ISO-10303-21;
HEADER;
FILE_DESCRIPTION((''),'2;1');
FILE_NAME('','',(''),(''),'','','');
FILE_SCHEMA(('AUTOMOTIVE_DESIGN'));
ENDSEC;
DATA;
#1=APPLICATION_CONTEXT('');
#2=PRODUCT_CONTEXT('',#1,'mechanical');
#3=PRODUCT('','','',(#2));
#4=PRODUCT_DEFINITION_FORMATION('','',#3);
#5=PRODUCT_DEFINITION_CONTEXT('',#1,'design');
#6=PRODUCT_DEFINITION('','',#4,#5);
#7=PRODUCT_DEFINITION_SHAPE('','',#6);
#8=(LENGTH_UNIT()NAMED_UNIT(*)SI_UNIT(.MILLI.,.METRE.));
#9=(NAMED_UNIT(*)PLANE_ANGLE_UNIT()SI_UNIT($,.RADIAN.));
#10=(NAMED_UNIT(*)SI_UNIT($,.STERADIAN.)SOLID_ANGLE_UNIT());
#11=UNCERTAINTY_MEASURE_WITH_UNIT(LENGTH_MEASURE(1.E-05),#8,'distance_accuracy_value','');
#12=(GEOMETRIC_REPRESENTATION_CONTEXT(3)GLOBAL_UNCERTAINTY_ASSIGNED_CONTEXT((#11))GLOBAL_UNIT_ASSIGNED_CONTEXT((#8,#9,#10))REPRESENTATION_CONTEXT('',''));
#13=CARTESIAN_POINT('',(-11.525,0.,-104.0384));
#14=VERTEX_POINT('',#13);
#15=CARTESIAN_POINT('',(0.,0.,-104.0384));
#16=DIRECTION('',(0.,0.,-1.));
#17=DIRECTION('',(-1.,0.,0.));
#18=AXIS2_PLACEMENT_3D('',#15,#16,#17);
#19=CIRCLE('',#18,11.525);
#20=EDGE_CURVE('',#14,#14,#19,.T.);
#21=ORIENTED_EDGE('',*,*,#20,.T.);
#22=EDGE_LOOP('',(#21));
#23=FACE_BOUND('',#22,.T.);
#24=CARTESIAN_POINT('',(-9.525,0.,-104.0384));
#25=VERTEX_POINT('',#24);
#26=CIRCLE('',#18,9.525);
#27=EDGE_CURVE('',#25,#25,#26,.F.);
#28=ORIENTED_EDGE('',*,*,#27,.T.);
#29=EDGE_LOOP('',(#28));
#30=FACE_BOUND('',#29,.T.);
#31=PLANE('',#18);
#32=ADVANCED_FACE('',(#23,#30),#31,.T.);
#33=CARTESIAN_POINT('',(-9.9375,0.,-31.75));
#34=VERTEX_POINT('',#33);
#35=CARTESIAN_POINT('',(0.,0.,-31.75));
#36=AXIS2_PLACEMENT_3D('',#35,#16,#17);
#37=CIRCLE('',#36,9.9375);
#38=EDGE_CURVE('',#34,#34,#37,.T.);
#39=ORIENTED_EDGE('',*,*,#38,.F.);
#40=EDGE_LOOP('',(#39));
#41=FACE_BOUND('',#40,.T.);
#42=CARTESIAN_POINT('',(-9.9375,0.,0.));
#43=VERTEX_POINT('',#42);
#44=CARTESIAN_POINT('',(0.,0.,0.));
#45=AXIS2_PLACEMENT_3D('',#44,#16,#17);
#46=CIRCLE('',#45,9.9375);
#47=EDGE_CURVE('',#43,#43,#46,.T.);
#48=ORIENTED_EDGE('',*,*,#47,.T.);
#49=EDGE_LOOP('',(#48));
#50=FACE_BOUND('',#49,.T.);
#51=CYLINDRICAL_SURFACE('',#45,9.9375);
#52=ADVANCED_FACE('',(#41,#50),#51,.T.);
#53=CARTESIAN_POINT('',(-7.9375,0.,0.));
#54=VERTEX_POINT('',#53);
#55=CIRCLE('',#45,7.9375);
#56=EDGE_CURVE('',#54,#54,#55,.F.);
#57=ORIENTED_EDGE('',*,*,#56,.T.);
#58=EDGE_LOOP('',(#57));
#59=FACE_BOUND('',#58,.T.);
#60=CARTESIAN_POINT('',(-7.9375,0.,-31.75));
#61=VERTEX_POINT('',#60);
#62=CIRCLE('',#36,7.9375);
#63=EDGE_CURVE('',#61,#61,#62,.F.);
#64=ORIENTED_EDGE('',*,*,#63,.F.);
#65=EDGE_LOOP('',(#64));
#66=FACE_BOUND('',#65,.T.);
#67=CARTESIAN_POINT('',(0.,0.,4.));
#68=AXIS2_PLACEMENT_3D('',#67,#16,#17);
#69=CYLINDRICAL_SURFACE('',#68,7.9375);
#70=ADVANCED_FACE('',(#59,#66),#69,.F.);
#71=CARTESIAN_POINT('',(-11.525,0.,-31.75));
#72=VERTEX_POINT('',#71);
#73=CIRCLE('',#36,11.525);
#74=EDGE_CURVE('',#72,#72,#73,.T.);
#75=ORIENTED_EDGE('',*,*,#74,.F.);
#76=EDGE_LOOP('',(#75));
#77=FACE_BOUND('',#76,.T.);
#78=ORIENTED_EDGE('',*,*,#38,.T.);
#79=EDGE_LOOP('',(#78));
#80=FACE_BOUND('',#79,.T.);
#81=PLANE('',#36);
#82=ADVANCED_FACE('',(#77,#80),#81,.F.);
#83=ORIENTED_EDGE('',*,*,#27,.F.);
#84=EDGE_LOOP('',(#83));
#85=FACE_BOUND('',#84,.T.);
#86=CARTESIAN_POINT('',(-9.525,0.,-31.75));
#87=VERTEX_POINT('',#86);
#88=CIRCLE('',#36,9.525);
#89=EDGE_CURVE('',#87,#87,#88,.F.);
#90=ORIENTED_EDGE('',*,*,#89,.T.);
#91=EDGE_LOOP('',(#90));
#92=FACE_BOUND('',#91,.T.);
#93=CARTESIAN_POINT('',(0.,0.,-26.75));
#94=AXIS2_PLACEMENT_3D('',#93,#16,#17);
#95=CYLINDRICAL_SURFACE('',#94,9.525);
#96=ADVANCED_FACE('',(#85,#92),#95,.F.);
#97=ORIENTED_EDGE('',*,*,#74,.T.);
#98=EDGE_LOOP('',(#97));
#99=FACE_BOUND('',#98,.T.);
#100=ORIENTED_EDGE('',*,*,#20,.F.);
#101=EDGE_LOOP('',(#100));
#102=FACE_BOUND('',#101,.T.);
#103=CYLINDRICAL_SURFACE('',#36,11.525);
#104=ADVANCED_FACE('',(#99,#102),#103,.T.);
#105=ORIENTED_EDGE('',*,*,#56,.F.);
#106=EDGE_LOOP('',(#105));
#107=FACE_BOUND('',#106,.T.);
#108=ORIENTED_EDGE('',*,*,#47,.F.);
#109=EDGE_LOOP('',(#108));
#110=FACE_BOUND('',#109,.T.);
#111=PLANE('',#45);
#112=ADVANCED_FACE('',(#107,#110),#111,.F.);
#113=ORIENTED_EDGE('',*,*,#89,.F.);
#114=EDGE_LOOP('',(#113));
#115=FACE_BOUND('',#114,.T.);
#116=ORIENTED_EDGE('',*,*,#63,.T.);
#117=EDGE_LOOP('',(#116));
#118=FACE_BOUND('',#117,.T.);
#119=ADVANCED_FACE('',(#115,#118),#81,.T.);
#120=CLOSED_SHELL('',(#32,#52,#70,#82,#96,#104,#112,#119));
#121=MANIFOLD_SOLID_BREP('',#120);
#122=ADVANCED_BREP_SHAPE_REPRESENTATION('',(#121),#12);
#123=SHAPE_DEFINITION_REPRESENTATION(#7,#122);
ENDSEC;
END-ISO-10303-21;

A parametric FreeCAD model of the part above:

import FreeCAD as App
import Part
import Sketcher

V = App.Vector
Q = App.Units.Quantity

doc = App.newDocument("Part")
params = doc.addObject("Spreadsheet::Sheet", "Params")
for row, (alias, value) in enumerate([
    ("sketch2_height", "1.25 in"),
    ("sketch3_diameter", "0.625 in"),
    ("sketch4_height", "1.25 in"),
    ("sketch6_height", "2.846 in"),
    ("sketch7_diameter", "0.75 in"),
    ("sketch8_height", "2.846 in"),
], start=1):
    params.set(f"A{row}", alias)
    params.set(f"B{row}", "=" + value)
    params.setAlias(f"B{row}", alias)

body = doc.addObject("PartDesign::Body", "Body")

# Sketch on XY plane
sketch1 = doc.addObject("Sketcher::SketchObject", "Sketch")
body.addObject(sketch1)
sketch1.AttachmentSupport = (doc.XY_Plane, [""])
sketch1.MapMode = "FlatFace"
sketch1.addGeometry(Part.Circle(V(0, 0, 0), V(0, 0, 1), 9.9375), False)
sketch1.addConstraint([
    Sketcher.Constraint("Coincident", 0, 3, -1, 1),
    Sketcher.Constraint("Diameter", 0, Q("19.875 mm")),
])

# Sketch on XZ plane
sketch2 = doc.addObject("Sketcher::SketchObject", "Sketch001")
body.addObject(sketch2)
sketch2.AttachmentSupport = (doc.XZ_Plane, [""])
sketch2.MapMode = "FlatFace"
sketch2.addGeometry(Part.LineSegment(V(0, 0, 0), V(0, -31.75, 0)), False)
sketch2.addConstraint([
    Sketcher.Constraint("Vertical", 0),
    Sketcher.Constraint("Coincident", 0, 1, -1, 1),
    Sketcher.Constraint("DistanceY", 0, 2, 0, 1, Q("1.25 in")),
])
sketch2.setExpression("Constraints[2]", "Params.sketch2_height")
doc.recompute()

additivepipe = doc.addObject("PartDesign::AdditivePipe", "AdditivePipe")
body.addObject(additivepipe)
additivepipe.Profile = sketch1
additivepipe.Spine = (sketch2, ["Edge1"])

# Sketch on XY plane
sketch3 = doc.addObject("Sketcher::SketchObject", "Sketch002")
body.addObject(sketch3)
sketch3.AttachmentSupport = (doc.XY_Plane, [""])
sketch3.MapMode = "FlatFace"
sketch3.addGeometry(Part.Circle(V(0, 0, 0), V(0, 0, 1), 7.9375), False)
sketch3.addConstraint([
    Sketcher.Constraint("Coincident", 0, 3, -1, 1),
    Sketcher.Constraint("Diameter", 0, Q("0.625 in")),
])
sketch3.setExpression("Constraints[1]", "Params.sketch3_diameter")

# Sketch on XZ plane
sketch4 = doc.addObject("Sketcher::SketchObject", "Sketch003")
body.addObject(sketch4)
sketch4.AttachmentSupport = (doc.XZ_Plane, [""])
sketch4.MapMode = "FlatFace"
sketch4.addGeometry(Part.LineSegment(V(0, 0, 0), V(0, -31.75, 0)), False)
sketch4.addConstraint([
    Sketcher.Constraint("Vertical", 0),
    Sketcher.Constraint("Coincident", 0, 1, -1, 1),
    Sketcher.Constraint("DistanceY", 0, 2, 0, 1, Q("1.25 in")),
])
sketch4.setExpression("Constraints[2]", "Params.sketch4_height")
doc.recompute()

subtractivepipe = doc.addObject("PartDesign::SubtractivePipe", "SubtractivePipe")
body.addObject(subtractivepipe)
subtractivepipe.Profile = sketch3
subtractivepipe.Spine = (sketch4, ["Edge1"])

# Sketch on XY plane
sketch5 = doc.addObject("Sketcher::SketchObject", "Sketch004")
body.addObject(sketch5)
sketch5.AttachmentSupport = (doc.XY_Plane, [""])
sketch5.MapMode = "FlatFace"
sketch5.AttachmentOffset = App.Placement(V(0, 0, -1.25 * 25.4), App.Rotation())
sketch5.addGeometry(Part.Circle(V(0, 0, 0), V(0, 0, 1), 11.525), False)
sketch5.addConstraint([
    Sketcher.Constraint("Coincident", 0, 3, -1, 1),
    Sketcher.Constraint("Diameter", 0, Q("23.05 mm")),
])

# Sketch on XZ plane
sketch6 = doc.addObject("Sketcher::SketchObject", "Sketch005")
body.addObject(sketch6)
sketch6.AttachmentSupport = (doc.XZ_Plane, [""])
sketch6.MapMode = "FlatFace"
sketch6.addGeometry(Part.LineSegment(V(0, -31.75, 0), V(0, -104.0384, 0)), False)
sketch6.addConstraint([
    Sketcher.Constraint("Vertical", 0),
    Sketcher.Constraint("PointOnObject", 0, 1, -2),
    Sketcher.Constraint("DistanceY", 0, 2, 0, 1, Q("2.846 in")),
    Sketcher.Constraint("DistanceY", 0, 1, -1, 1, Q("1.25 in")),
])
sketch6.setExpression("Constraints[2]", "Params.sketch6_height")
doc.recompute()

additivepipe2 = doc.addObject("PartDesign::AdditivePipe", "AdditivePipe001")
body.addObject(additivepipe2)
additivepipe2.Profile = sketch5
additivepipe2.Spine = (sketch6, ["Edge1"])

# Sketch on XY plane
sketch7 = doc.addObject("Sketcher::SketchObject", "Sketch006")
body.addObject(sketch7)
sketch7.AttachmentSupport = (doc.XY_Plane, [""])
sketch7.MapMode = "FlatFace"
sketch7.AttachmentOffset = App.Placement(V(0, 0, -1.25 * 25.4), App.Rotation())
sketch7.addGeometry(Part.Circle(V(0, 0, 0), V(0, 0, 1), 9.525), False)
sketch7.addConstraint([
    Sketcher.Constraint("Coincident", 0, 3, -1, 1),
    Sketcher.Constraint("Diameter", 0, Q("0.75 in")),
])
sketch7.setExpression("Constraints[1]", "Params.sketch7_diameter")

# Sketch on XZ plane
sketch8 = doc.addObject("Sketcher::SketchObject", "Sketch007")
body.addObject(sketch8)
sketch8.AttachmentSupport = (doc.XZ_Plane, [""])
sketch8.MapMode = "FlatFace"
sketch8.addGeometry(Part.LineSegment(V(0, -31.75, 0), V(0, -104.0384, 0)), False)
sketch8.addConstraint([
    Sketcher.Constraint("Vertical", 0),
    Sketcher.Constraint("PointOnObject", 0, 1, -2),
    Sketcher.Constraint("DistanceY", 0, 2, 0, 1, Q("2.846 in")),
    Sketcher.Constraint("DistanceY", 0, 1, -1, 1, Q("1.25 in")),
])
sketch8.setExpression("Constraints[2]", "Params.sketch8_height")
doc.recompute()

subtractivepipe2 = doc.addObject("PartDesign::SubtractivePipe", "SubtractivePipe001")
body.addObject(subtractivepipe2)
subtractivepipe2.Profile = sketch7
subtractivepipe2.Spine = (sketch8, ["Edge1"])

doc.recompute()
